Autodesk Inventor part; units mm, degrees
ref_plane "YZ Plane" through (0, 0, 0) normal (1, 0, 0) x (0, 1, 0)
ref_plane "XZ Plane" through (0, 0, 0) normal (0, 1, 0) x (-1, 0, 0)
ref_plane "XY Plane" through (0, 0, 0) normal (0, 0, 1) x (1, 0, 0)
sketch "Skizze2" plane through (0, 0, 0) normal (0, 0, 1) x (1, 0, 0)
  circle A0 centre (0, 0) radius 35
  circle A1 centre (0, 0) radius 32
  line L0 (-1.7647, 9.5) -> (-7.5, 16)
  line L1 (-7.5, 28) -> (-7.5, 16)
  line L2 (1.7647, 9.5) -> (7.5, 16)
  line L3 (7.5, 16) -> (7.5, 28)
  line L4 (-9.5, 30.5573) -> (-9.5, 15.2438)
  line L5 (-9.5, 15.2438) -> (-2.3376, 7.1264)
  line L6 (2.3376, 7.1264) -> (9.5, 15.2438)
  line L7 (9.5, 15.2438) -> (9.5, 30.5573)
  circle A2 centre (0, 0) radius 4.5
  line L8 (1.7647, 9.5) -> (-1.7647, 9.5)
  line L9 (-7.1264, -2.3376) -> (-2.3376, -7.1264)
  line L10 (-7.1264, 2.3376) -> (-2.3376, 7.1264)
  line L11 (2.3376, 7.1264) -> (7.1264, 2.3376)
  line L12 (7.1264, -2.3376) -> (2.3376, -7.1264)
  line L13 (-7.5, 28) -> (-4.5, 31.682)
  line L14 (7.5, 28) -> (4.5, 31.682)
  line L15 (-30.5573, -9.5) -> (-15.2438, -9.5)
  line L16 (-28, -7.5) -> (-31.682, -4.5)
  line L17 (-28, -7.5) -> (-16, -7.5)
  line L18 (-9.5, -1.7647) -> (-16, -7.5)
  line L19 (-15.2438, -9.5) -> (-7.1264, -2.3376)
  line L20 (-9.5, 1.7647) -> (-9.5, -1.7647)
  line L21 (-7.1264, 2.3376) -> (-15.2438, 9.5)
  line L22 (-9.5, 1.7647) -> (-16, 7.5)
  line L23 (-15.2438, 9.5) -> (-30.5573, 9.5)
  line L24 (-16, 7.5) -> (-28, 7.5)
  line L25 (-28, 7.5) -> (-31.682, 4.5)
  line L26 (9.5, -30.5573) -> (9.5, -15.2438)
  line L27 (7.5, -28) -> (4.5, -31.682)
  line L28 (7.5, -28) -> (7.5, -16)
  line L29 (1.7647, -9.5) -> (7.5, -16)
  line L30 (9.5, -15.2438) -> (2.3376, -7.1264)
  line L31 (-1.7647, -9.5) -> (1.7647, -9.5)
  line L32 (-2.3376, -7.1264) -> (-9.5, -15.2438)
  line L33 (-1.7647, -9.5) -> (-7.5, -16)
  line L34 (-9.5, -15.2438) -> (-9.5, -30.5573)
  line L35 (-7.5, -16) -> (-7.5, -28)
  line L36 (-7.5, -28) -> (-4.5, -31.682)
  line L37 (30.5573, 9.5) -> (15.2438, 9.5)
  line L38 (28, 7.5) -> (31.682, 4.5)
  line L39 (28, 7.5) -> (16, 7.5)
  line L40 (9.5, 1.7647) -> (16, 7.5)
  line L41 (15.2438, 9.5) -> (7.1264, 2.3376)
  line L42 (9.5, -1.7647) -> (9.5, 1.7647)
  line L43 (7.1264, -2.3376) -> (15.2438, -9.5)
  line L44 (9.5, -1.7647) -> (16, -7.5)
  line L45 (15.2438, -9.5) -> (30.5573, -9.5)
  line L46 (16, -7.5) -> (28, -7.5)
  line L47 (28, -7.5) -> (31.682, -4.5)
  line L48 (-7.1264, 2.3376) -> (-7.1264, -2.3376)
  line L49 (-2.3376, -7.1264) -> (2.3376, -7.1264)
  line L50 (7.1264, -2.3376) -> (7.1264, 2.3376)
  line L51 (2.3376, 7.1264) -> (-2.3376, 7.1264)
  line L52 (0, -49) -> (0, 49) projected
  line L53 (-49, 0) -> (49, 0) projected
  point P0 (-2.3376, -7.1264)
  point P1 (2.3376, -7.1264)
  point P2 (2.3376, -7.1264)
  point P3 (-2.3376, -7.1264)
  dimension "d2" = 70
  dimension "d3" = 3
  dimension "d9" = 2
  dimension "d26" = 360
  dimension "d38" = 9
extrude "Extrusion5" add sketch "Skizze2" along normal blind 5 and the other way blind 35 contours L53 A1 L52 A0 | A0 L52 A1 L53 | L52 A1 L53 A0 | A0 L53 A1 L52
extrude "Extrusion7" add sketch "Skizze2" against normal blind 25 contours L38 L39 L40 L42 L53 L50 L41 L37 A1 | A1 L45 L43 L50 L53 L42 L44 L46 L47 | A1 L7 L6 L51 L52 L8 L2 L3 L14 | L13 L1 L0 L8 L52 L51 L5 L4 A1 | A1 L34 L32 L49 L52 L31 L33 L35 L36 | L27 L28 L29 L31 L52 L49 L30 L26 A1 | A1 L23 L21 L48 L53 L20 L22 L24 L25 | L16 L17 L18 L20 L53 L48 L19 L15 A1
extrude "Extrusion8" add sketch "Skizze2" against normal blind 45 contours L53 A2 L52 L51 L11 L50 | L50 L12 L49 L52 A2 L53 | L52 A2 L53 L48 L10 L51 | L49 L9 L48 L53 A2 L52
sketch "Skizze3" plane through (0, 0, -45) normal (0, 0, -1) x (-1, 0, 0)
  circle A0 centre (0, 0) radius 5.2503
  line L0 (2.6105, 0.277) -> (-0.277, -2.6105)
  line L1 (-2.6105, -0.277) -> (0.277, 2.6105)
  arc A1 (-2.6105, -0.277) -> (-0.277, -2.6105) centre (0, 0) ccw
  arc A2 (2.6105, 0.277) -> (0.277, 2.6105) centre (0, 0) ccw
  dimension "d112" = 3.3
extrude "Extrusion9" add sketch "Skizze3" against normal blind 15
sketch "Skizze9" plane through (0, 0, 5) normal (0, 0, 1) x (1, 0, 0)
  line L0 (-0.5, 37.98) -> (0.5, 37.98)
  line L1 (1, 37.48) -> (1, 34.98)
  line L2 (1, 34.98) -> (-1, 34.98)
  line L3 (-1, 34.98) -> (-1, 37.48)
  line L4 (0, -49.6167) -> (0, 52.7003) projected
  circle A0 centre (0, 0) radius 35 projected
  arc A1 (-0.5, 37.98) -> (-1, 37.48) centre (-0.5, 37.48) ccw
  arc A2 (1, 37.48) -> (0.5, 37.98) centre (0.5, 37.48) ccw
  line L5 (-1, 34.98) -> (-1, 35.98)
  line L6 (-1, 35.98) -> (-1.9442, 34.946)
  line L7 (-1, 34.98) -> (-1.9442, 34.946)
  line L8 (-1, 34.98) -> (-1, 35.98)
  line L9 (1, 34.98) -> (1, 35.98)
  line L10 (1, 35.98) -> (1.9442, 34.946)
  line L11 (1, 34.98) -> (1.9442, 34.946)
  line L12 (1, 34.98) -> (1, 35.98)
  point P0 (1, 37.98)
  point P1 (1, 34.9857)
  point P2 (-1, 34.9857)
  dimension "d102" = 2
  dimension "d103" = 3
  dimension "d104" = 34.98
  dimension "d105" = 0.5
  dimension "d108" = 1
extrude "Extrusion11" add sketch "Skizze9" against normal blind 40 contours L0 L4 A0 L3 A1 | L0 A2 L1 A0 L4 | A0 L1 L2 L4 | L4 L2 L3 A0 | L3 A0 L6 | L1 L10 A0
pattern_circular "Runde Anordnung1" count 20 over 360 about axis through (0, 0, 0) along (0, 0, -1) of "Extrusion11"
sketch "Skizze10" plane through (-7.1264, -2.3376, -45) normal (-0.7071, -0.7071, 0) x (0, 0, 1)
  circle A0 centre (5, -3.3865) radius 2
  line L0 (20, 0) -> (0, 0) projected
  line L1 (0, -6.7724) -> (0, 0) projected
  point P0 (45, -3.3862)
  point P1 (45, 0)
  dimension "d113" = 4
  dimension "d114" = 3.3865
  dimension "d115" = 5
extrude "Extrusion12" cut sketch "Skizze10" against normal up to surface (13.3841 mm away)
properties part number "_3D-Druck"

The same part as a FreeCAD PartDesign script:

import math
import FreeCAD as App
import Part
import Sketcher

V = App.Vector
Q = App.Units.Quantity


def add_polygon(sketch, points):
    """Adds a closed chain of lines whose ends are joined by coincident constraints."""
    first, n = sketch.GeometryCount, len(points)
    for a, b in zip(points, points[1:] + points[:1]):
        sketch.addGeometry(Part.LineSegment(App.Vector(*a, 0), App.Vector(*b, 0)), False)
    for i in range(n):
        sketch.addConstraint(Sketcher.Constraint("Coincident", first + i, 2, first + (i + 1) % n, 1))

doc = App.newDocument("Part")
body = doc.addObject("PartDesign::Body", "Body")

# Sketch on XY plane
sketch1 = body.newObject("Sketcher::SketchObject", "Sketch")
sketch1.AttachmentSupport = (doc.getObject("XY_Plane"), [""])
sketch1.MapMode = "FlatFace"
sketch1.addGeometry([
    Part.Circle(V(0, 0, 0), V(0, 0, 1), 35),
    Part.Circle(V(0, 0, 0), V(0, 0, 1), 32),
], False)
sketch1.addConstraint([
    Sketcher.Constraint("Coincident", 0, 3, -1, 1),
    Sketcher.Constraint("Coincident", 1, 3, -1, 1),
    Sketcher.Constraint("Diameter", 0, Q("70 mm")),
    Sketcher.Constraint("Diameter", 1, Q("64 mm")),
])
pad1 = body.newObject("PartDesign::Pad", "Pad")
pad1.Profile = sketch1
pad1.Type = "TwoLengths"
pad1.Length = 5
pad1.Length2 = 35

# Sketch on XY plane
sketch2 = body.newObject("Sketcher::SketchObject", "Sketch001")
sketch2.AttachmentSupport = (doc.getObject("XY_Plane"), [""])
sketch2.MapMode = "FlatFace"
sketch2.addGeometry([
    Part.LineSegment(V(28, 7.5, 0), V(31.7, 4.5, 0)),  # 0
    Part.ArcOfCircle(Part.Circle(V(0, 0, 0), V(0, 0, 1), 32), math.radians(8.08), math.radians(17.27)),  # 1
    Part.LineSegment(V(30.6, 9.5, 0), V(15.2, 9.5, 0)),  # 2
    Part.LineSegment(V(15.2, 9.5, 0), V(7.1, 2.3, 0)),  # 3
    Part.LineSegment(V(7.1, 2.3, 0), V(7.1, -2.3, 0)),  # 4
    Part.LineSegment(V(7.1, -2.3, 0), V(15.2, -9.5, 0)),  # 5
    Part.LineSegment(V(15.2, -9.5, 0), V(30.6, -9.5, 0)),  # 6
    Part.ArcOfCircle(Part.Circle(V(0, 0, 0), V(0, 0, 1), 32), math.radians(-17.27), math.radians(-8.08)),  # 7
    Part.LineSegment(V(31.7, -4.5, 0), V(28, -7.5, 0)),  # 8
    Part.LineSegment(V(28, -7.5, 0), V(16, -7.5, 0)),  # 9
    Part.LineSegment(V(16, -7.5, 0), V(9.5, -1.8, 0)),  # 10
    Part.LineSegment(V(9.5, -1.8, 0), V(9.5, 1.8, 0)),  # 11
    Part.LineSegment(V(9.5, 1.8, 0), V(16, 7.5, 0)),  # 12
    Part.LineSegment(V(16, 7.5, 0), V(28, 7.5, 0)),  # 13
    Part.ArcOfCircle(Part.Circle(V(0, 0, 0), V(0, 0, 1), 32), math.radians(72.73), math.radians(81.92)),  # 14
    Part.LineSegment(V(4.5, 31.7, 0), V(7.5, 28, 0)),  # 15
    Part.LineSegment(V(7.5, 28, 0), V(7.5, 16, 0)),  # 16
    Part.LineSegment(V(7.5, 16, 0), V(1.8, 9.5, 0)),  # 17
    Part.LineSegment(V(1.8, 9.5, 0), V(-1.8, 9.5, 0)),  # 18
    Part.LineSegment(V(-1.8, 9.5, 0), V(-7.5, 16, 0)),  # 19
    Part.LineSegment(V(-7.5, 16, 0), V(-7.5, 28, 0)),  # 20
    Part.LineSegment(V(-7.5, 28, 0), V(-4.5, 31.7, 0)),  # 21
    Part.ArcOfCircle(Part.Circle(V(0, 0, 0), V(0, 0, 1), 32), math.radians(98.08), math.radians(107.27)),  # 22
    Part.LineSegment(V(-9.5, 30.6, 0), V(-9.5, 15.2, 0)),  # 23
    Part.LineSegment(V(-9.5, 15.2, 0), V(-2.3, 7.1, 0)),  # 24
    Part.LineSegment(V(-2.3, 7.1, 0), V(2.3, 7.1, 0)),  # 25
    Part.LineSegment(V(2.3, 7.1, 0), V(9.5, 15.2, 0)),  # 26
    Part.LineSegment(V(9.5, 15.2, 0), V(9.5, 30.6, 0)),  # 27
    Part.ArcOfCircle(Part.Circle(V(0, 0, 0), V(0, 0, 1), 32), math.radians(-107.27), math.radians(-98.08)),  # 28
    Part.LineSegment(V(-4.5, -31.7, 0), V(-7.5, -28, 0)),  # 29
    Part.LineSegment(V(-7.5, -28, 0), V(-7.5, -16, 0)),  # 30
    Part.LineSegment(V(-7.5, -16, 0), V(-1.8, -9.5, 0)),  # 31
    Part.LineSegment(V(-1.8, -9.5, 0), V(1.8, -9.5, 0)),  # 32
    Part.LineSegment(V(1.8, -9.5, 0), V(7.5, -16, 0)),  # 33
    Part.LineSegment(V(7.5, -16, 0), V(7.5, -28, 0)),  # 34
    Part.LineSegment(V(7.5, -28, 0), V(4.5, -31.7, 0)),  # 35
    Part.ArcOfCircle(Part.Circle(V(0, 0, 0), V(0, 0, 1), 32), math.radians(-81.92), math.radians(-72.73)),  # 36
    Part.LineSegment(V(9.5, -30.6, 0), V(9.5, -15.2, 0)),  # 37
    Part.LineSegment(V(9.5, -15.2, 0), V(2.3, -7.1, 0)),  # 38
    Part.LineSegment(V(2.3, -7.1, 0), V(-2.3, -7.1, 0)),  # 39
    Part.LineSegment(V(-2.3, -7.1, 0), V(-9.5, -15.2, 0)),  # 40
    Part.LineSegment(V(-9.5, -15.2, 0), V(-9.5, -30.6, 0)),  # 41
    Part.ArcOfCircle(Part.Circle(V(0, 0, 0), V(0, 0, 1), 32), math.radians(162.73), math.radians(171.92)),  # 42
    Part.LineSegment(V(-31.7, 4.5, 0), V(-28, 7.5, 0)),  # 43
    Part.LineSegment(V(-28, 7.5, 0), V(-16, 7.5, 0)),  # 44
    Part.LineSegment(V(-16, 7.5, 0), V(-9.5, 1.8, 0)),  # 45
    Part.LineSegment(V(-9.5, 1.8, 0), V(-9.5, -1.8, 0)),  # 46
    Part.LineSegment(V(-9.5, -1.8, 0), V(-16, -7.5, 0)),  # 47
    Part.LineSegment(V(-16, -7.5, 0), V(-28, -7.5, 0)),  # 48
    Part.LineSegment(V(-28, -7.5, 0), V(-31.7, -4.5, 0)),  # 49
    Part.ArcOfCircle(Part.Circle(V(0, 0, 0), V(0, 0, 1), 32), math.radians(-171.92), math.radians(-162.73)),  # 50
    Part.LineSegment(V(-30.6, -9.5, 0), V(-15.2, -9.5, 0)),  # 51
    Part.LineSegment(V(-15.2, -9.5, 0), V(-7.1, -2.3, 0)),  # 52
    Part.LineSegment(V(-7.1, -2.3, 0), V(-7.1, 2.3, 0)),  # 53
    Part.LineSegment(V(-7.1, 2.3, 0), V(-15.2, 9.5, 0)),  # 54
    Part.LineSegment(V(-15.2, 9.5, 0), V(-30.6, 9.5, 0)),  # 55
], False)
sketch2.addConstraint([
    Sketcher.Constraint("Coincident", 0, 2, 1, 1),
    Sketcher.Constraint("Coincident", 1, 2, 2, 1),
    Sketcher.Constraint("Coincident", 2, 2, 3, 1),
    Sketcher.Constraint("Coincident", 3, 2, 4, 1),
    Sketcher.Constraint("Coincident", 4, 2, 5, 1),
    Sketcher.Constraint("Coincident", 5, 2, 6, 1),
    Sketcher.Constraint("Coincident", 6, 2, 7, 1),
    Sketcher.Constraint("Coincident", 7, 2, 8, 1),
    Sketcher.Constraint("Coincident", 8, 2, 9, 1),
    Sketcher.Constraint("Coincident", 9, 2, 10, 1),
    Sketcher.Constraint("Coincident", 10, 2, 11, 1),
    Sketcher.Constraint("Coincident", 11, 2, 12, 1),
    Sketcher.Constraint("Coincident", 12, 2, 13, 1),
    Sketcher.Constraint("Coincident", 13, 2, 0, 1),
    Sketcher.Constraint("Coincident", 14, 2, 15, 1),
    Sketcher.Constraint("Coincident", 15, 2, 16, 1),
    Sketcher.Constraint("Coincident", 16, 2, 17, 1),
    Sketcher.Constraint("Coincident", 17, 2, 18, 1),
    Sketcher.Constraint("Coincident", 18, 2, 19, 1),
    Sketcher.Constraint("Coincident", 19, 2, 20, 1),
    Sketcher.Constraint("Coincident", 20, 2, 21, 1),
    Sketcher.Constraint("Coincident", 21, 2, 22, 1),
    Sketcher.Constraint("Coincident", 22, 2, 23, 1),
    Sketcher.Constraint("Coincident", 23, 2, 24, 1),
    Sketcher.Constraint("Coincident", 24, 2, 25, 1),
    Sketcher.Constraint("Coincident", 25, 2, 26, 1),
    Sketcher.Constraint("Coincident", 26, 2, 27, 1),
    Sketcher.Constraint("Coincident", 27, 2, 14, 1),
    Sketcher.Constraint("Coincident", 28, 2, 29, 1),
    Sketcher.Constraint("Coincident", 29, 2, 30, 1),
    Sketcher.Constraint("Coincident", 30, 2, 31, 1),
    Sketcher.Constraint("Coincident", 31, 2, 32, 1),
    Sketcher.Constraint("Coincident", 32, 2, 33, 1),
    Sketcher.Constraint("Coincident", 33, 2, 34, 1),
    Sketcher.Constraint("Coincident", 34, 2, 35, 1),
    Sketcher.Constraint("Coincident", 35, 2, 36, 1),
    Sketcher.Constraint("Coincident", 36, 2, 37, 1),
    Sketcher.Constraint("Coincident", 37, 2, 38, 1),
    Sketcher.Constraint("Coincident", 38, 2, 39, 1),
    Sketcher.Constraint("Coincident", 39, 2, 40, 1),
    Sketcher.Constraint("Coincident", 40, 2, 41, 1),
    Sketcher.Constraint("Coincident", 41, 2, 28, 1),
    Sketcher.Constraint("Coincident", 42, 2, 43, 1),
    Sketcher.Constraint("Coincident", 43, 2, 44, 1),
    Sketcher.Constraint("Coincident", 44, 2, 45, 1),
    Sketcher.Constraint("Coincident", 45, 2, 46, 1),
    Sketcher.Constraint("Coincident", 46, 2, 47, 1),
    Sketcher.Constraint("Coincident", 47, 2, 48, 1),
    Sketcher.Constraint("Coincident", 48, 2, 49, 1),
    Sketcher.Constraint("Coincident", 49, 2, 50, 1),
    Sketcher.Constraint("Coincident", 50, 2, 51, 1),
    Sketcher.Constraint("Coincident", 51, 2, 52, 1),
    Sketcher.Constraint("Coincident", 52, 2, 53, 1),
    Sketcher.Constraint("Coincident", 53, 2, 54, 1),
    Sketcher.Constraint("Coincident", 54, 2, 55, 1),
    Sketcher.Constraint("Coincident", 55, 2, 42, 1),
    Sketcher.Constraint("Horizontal", 2),
    Sketcher.Constraint("Vertical", 4),
    Sketcher.Constraint("Horizontal", 6),
    Sketcher.Constraint("Horizontal", 9),
    Sketcher.Constraint("Vertical", 11),
    Sketcher.Constraint("Horizontal", 13),
    Sketcher.Constraint("Vertical", 16),
    Sketcher.Constraint("Horizontal", 18),
    Sketcher.Constraint("Vertical", 20),
    Sketcher.Constraint("Vertical", 23),
    Sketcher.Constraint("Horizontal", 25),
    Sketcher.Constraint("Vertical", 27),
    Sketcher.Constraint("Vertical", 30),
    Sketcher.Constraint("Horizontal", 32),
    Sketcher.Constraint("Vertical", 34),
    Sketcher.Constraint("Vertical", 37),
    Sketcher.Constraint("Horizontal", 39),
    Sketcher.Constraint("Vertical", 41),
    Sketcher.Constraint("Horizontal", 44),
    Sketcher.Constraint("Vertical", 46),
    Sketcher.Constraint("Horizontal", 48),
    Sketcher.Constraint("Horizontal", 51),
    Sketcher.Constraint("Vertical", 53),
    Sketcher.Constraint("Horizontal", 55),
    Sketcher.Constraint("Coincident", 1, 3, -1, 1),
    Sketcher.Constraint("Coincident", 7, 3, -1, 1),
    Sketcher.Constraint("Coincident", 14, 3, -1, 1),
    Sketcher.Constraint("Coincident", 22, 3, -1, 1),
    Sketcher.Constraint("Coincident", 28, 3, -1, 1),
    Sketcher.Constraint("Coincident", 36, 3, -1, 1),
    Sketcher.Constraint("Coincident", 42, 3, -1, 1),
    Sketcher.Constraint("Coincident", 50, 3, -1, 1),
    Sketcher.Constraint("Equal", 1, 7),
    Sketcher.Constraint("Equal", 7, 14),
    Sketcher.Constraint("Equal", 14, 22),
    Sketcher.Constraint("Equal", 22, 28),
    Sketcher.Constraint("Equal", 28, 36),
    Sketcher.Constraint("Equal", 36, 42),
    Sketcher.Constraint("Equal", 42, 50),
    Sketcher.Constraint("Symmetric", 15, 2, 29, 2, -1, 1),
    Sketcher.Constraint("Symmetric", 17, 2, 31, 2, -1, 1),
    Sketcher.Constraint("Symmetric", 19, 2, 33, 2, -1, 1),
    Sketcher.Constraint("Symmetric", 23, 2, 37, 2, -1, 1),
    Sketcher.Constraint("Symmetric", 24, 2, 38, 2, -1, 1),
    Sketcher.Constraint("Symmetric", 26, 2, 40, 2, -1, 1),
    Sketcher.Constraint("Symmetric", 8, 2, 43, 2, -1, 1),
    Sketcher.Constraint("Symmetric", 10, 2, 45, 2, -1, 1),
    Sketcher.Constraint("Symmetric", 12, 2, 47, 2, -1, 1),
    Sketcher.Constraint("Symmetric", 2, 2, 51, 2, -1, 1),
    Sketcher.Constraint("Symmetric", 3, 2, 52, 2, -1, 1),
    Sketcher.Constraint("Symmetric", 5, 2, 54, 2, -1, 1),
    Sketcher.Constraint("Symmetric", 16, 2, 19, 2, -2),
    Sketcher.Constraint("Symmetric", 23, 2, 26, 2, -2),
    Sketcher.Constraint("Symmetric", 13, 2, 43, 2, -2),
    Sketcher.Constraint("Symmetric", 5, 2, 51, 2, -2),
    Sketcher.Constraint("Parallel", 5, 10),
    Sketcher.Constraint("Parallel", 3, 12),
    Sketcher.Constraint("Perpendicular", 8, 15),
    Sketcher.Constraint("Perpendicular", 10, 17),
    Sketcher.Constraint("Perpendicular", 12, 19),
    Sketcher.Constraint("Perpendicular", 0, 21),
    Sketcher.Constraint("Parallel", 19, 24),
    Sketcher.Constraint("Parallel", 17, 26),
    Sketcher.Constraint("Parallel", 15, 29),
    Sketcher.Constraint("Parallel", 26, 31),
    Sketcher.Constraint("Parallel", 24, 33),
    Sketcher.Constraint("Parallel", 21, 35),
    Sketcher.Constraint("Parallel", 31, 40),
    Sketcher.Constraint("Perpendicular", 29, 43),
    Sketcher.Constraint("Perpendicular", 40, 45),
    Sketcher.Constraint("Perpendicular", 38, 47),
    Sketcher.Constraint("Perpendicular", 35, 49),
    Sketcher.Constraint("Parallel", 45, 54),
    Sketcher.Constraint("Horizontal", 2, 2, 17, 2),
    Sketcher.Constraint("Horizontal", 15, 2, 20, 2),
    Sketcher.Constraint("Horizontal", 14, 2, 21, 2),
    Sketcher.Constraint("Horizontal", 29, 2, 34, 2),
    Sketcher.Constraint("Horizontal", 11, 2, 45, 2),
    Sketcher.Constraint("Horizontal", 7, 2, 49, 2),
    Sketcher.Constraint("Horizontal", 4, 2, 52, 2),
    Sketcher.Constraint("Vertical", 11, 2, 26, 2),
    Sketcher.Constraint("Equal", 39, 4),
    Sketcher.Constraint("Equal", 32, 11),
    Sketcher.Constraint("Equal", 48, 16),
    Sketcher.Constraint("Equal", 55, 23),
    Sketcher.Constraint("Equal", 8, 15),
    Sketcher.Constraint("Equal", 12, 17),
    Sketcher.Constraint("Radius", 1, Q("32 mm")),
    Sketcher.Constraint("DistanceX", 9, 2, 9, 1, Q("12 mm")),
    Sketcher.Constraint("DistanceX", -1, 1, 8, 2, Q("28 mm")),
    Sketcher.Constraint("DistanceY", -1, 1, 0, 2, Q("4.5 mm")),
    Sketcher.Constraint("DistanceY", -1, 1, 1, 2, Q("9.5 mm")),
    Sketcher.Constraint("DistanceY", 8, 2, -1, 1, Q("7.5 mm")),
    Sketcher.Constraint("DistanceX", 2, 2, 2, 1, Q("15.3135 mm")),
    Sketcher.Constraint("DistanceX", 18, 2, 18, 1, Q("3.5294 mm")),
    Sketcher.Constraint("DistanceX", 25, 1, 25, 2, Q("4.6752 mm")),
])
pad2 = body.newObject("PartDesign::Pad", "Pad001")
pad2.Profile = sketch2
pad2.Length = 25
pad2.Reversed = True

# Sketch on XY plane
sketch3 = body.newObject("Sketcher::SketchObject", "Sketch002")
sketch3.AttachmentSupport = (doc.getObject("XY_Plane"), [""])
sketch3.MapMode = "FlatFace"
add_polygon(sketch3, [(2.3, 7.1), (-2.3, 7.1), (-7.1, 2.3), (-7.1, -2.3), (-2.3, -7.1), (2.3, -7.1), (7.1, -2.3), (7.1, 2.3)])  # lines 0-7
sketch3.addGeometry(Part.Circle(V(0, 0, 0), V(0, 0, 1), 4.5), False)  # 8
sketch3.addConstraint([
    Sketcher.Constraint("Horizontal", 0),
    Sketcher.Constraint("Vertical", 2),
    Sketcher.Constraint("Horizontal", 4),
    Sketcher.Constraint("Vertical", 6),
    Sketcher.Constraint("Coincident", 8, 3, -1, 1),
    Sketcher.Constraint("Symmetric", 0, 2, 4, 2, -1, 1),
    Sketcher.Constraint("Symmetric", 1, 2, 5, 2, -1, 1),
    Sketcher.Constraint("Perpendicular", 1, 3),
    Sketcher.Constraint("Perpendicular", 5, 7),
    Sketcher.Constraint("Horizontal", 2, 2, 5, 2),
    Sketcher.Constraint("Horizontal", 1, 2, 6, 2),
    Sketcher.Constraint("Vertical", 0, 2, 3, 2),
    Sketcher.Constraint("Equal", 4, 2),
    Sketcher.Constraint("Diameter", 8, Q("9 mm")),
    Sketcher.Constraint("DistanceX", 0, 2, 0, 1, Q("4.6752 mm")),
    Sketcher.Constraint("DistanceY", 2, 2, 0, 2, Q("9.464 mm")),
])
pad3 = body.newObject("PartDesign::Pad", "Pad002")
pad3.Profile = sketch3
pad3.Length = 45
pad3.Reversed = True

# Sketch on XY plane
sketch4 = body.newObject("Sketcher::SketchObject", "Sketch003")
sketch4.AttachmentSupport = (doc.getObject("XY_Plane"), [""])
sketch4.MapMode = "FlatFace"
sketch4.AttachmentOffset = App.Placement(V(0, 0, -45), App.Rotation())
sketch4.addGeometry([
    Part.Circle(V(0, 0, 0), V(0, 0, 1), 5.3),  # 0
    Part.ArcOfCircle(Part.Circle(V(0, 0, 0), V(0, 0, 1), 2.6), math.radians(96), math.radians(174)),  # 1
    Part.LineSegment(V(-2.6, 0.3, 0), V(0.3, -2.6, 0)),  # 2
    Part.ArcOfCircle(Part.Circle(V(0, 0, 0), V(0, 0, 1), 2.6), math.radians(-84), math.radians(-6)),  # 3
    Part.LineSegment(V(2.6, -0.3, 0), V(-0.3, 2.6, 0)),  # 4
], False)
sketch4.addConstraint([
    Sketcher.Constraint("Coincident", 1, 2, 2, 1),
    Sketcher.Constraint("Coincident", 2, 2, 3, 1),
    Sketcher.Constraint("Coincident", 3, 2, 4, 1),
    Sketcher.Constraint("Coincident", 4, 2, 1, 1),
    Sketcher.Constraint("Coincident", 0, 3, -1, 1),
    Sketcher.Constraint("Coincident", 1, 3, -1, 1),
    Sketcher.Constraint("Coincident", 3, 3, -1, 1),
    Sketcher.Constraint("Equal", 1, 3),
    Sketcher.Constraint("Parallel", 2, 4),
    Sketcher.Constraint("Equal", 2, 4),
    Sketcher.Constraint("Angle", 2, Q("-45 deg")),
    Sketcher.Constraint("Diameter", 0, Q("10.5006 mm")),
    Sketcher.Constraint("Radius", 1, Q("2.6252 mm")),
    Sketcher.Constraint("DistanceY", -1, 1, 1, 2, Q("0.277 mm")),
])
pad4 = body.newObject("PartDesign::Pad", "Pad003")
pad4.Profile = sketch4
pad4.Length = 15

# Sketch on XY plane
sketch5 = body.newObject("Sketcher::SketchObject", "Sketch004")
sketch5.AttachmentSupport = (doc.getObject("XY_Plane"), [""])
sketch5.MapMode = "FlatFace"
sketch5.AttachmentOffset = App.Placement(V(0, 0, 5), App.Rotation())
sketch5.addGeometry([
    Part.ArcOfCircle(Part.Circle(V(-0.5, 37.48, 0), V(0, 0, 1), 0.5), math.radians(90), math.radians(180)),  # 0
    Part.LineSegment(V(-1, 37.48, 0), V(-1, 35.98, 0)),  # 1
    Part.LineSegment(V(-1, 35.98, 0), V(-1.944, 34.946, 0)),  # 2
    Part.ArcOfCircle(Part.Circle(V(0, 0, 0), V(0, 0, 1), 35), math.radians(91.64), math.radians(93.18)),  # 3
    Part.LineSegment(V(-1, 34.986, 0), V(-1, 34.98, 0)),  # 4
    Part.LineSegment(V(-1, 34.98, 0), V(1, 34.98, 0)),  # 5
    Part.LineSegment(V(1, 34.98, 0), V(1, 34.986, 0)),  # 6
    Part.ArcOfCircle(Part.Circle(V(0, 0, 0), V(0, 0, 1), 35), math.radians(86.82), math.radians(88.36)),  # 7
    Part.LineSegment(V(1.944, 34.946, 0), V(1, 35.98, 0)),  # 8
    Part.LineSegment(V(1, 35.98, 0), V(1, 37.48, 0)),  # 9
    Part.ArcOfCircle(Part.Circle(V(0.5, 37.48, 0), V(0, 0, 1), 0.5), math.radians(0), math.radians(90)),  # 10
    Part.LineSegment(V(0.5, 37.98, 0), V(-0.5, 37.98, 0)),  # 11
], False)
sketch5.addConstraint([
    Sketcher.Constraint("Tangent", 0, 2, 1, 1),
    Sketcher.Constraint("Coincident", 1, 2, 2, 1),
    Sketcher.Constraint("Coincident", 2, 2, 3, 2),
    Sketcher.Constraint("Coincident", 3, 1, 4, 1),
    Sketcher.Constraint("Coincident", 4, 2, 5, 1),
    Sketcher.Constraint("Coincident", 5, 2, 6, 1),
    Sketcher.Constraint("Coincident", 6, 2, 7, 2),
    Sketcher.Constraint("Coincident", 7, 1, 8, 1),
    Sketcher.Constraint("Coincident", 8, 2, 9, 1),
    Sketcher.Constraint("Tangent", 9, 2, 10, 1),
    Sketcher.Constraint("Tangent", 10, 2, 11, 1),
    Sketcher.Constraint("Tangent", 11, 2, 0, 1),
    Sketcher.Constraint("Vertical", 1),
    Sketcher.Constraint("Vertical", 4),
    Sketcher.Constraint("Horizontal", 5),
    Sketcher.Constraint("Vertical", 6),
    Sketcher.Constraint("Vertical", 9),
    Sketcher.Constraint("Horizontal", 11),
    Sketcher.Constraint("Coincident", 3, 3, -1, 1),
    Sketcher.Constraint("Coincident", 7, 3, -1, 1),
    Sketcher.Constraint("Equal", 3, 7),
    Sketcher.Constraint("Equal", 0, 10),
    Sketcher.Constraint("Symmetric", 1, 2, 8, 2, -2),
    Sketcher.Constraint("Horizontal", 3, 1, 6, 2),
    Sketcher.Constraint("Horizontal", 2, 2, 7, 1),
    Sketcher.Constraint("Vertical", 1, 2, 3, 1),
    Sketcher.Constraint("Radius", 0, Q("0.5 mm")),
    Sketcher.Constraint("DistanceX", 5, 1, 5, 2, Q("2 mm")),
    Sketcher.Constraint("Radius", 3, Q("35 mm")),
    Sketcher.Constraint("DistanceY", 4, 2, 1, 2, Q("1 mm")),
    Sketcher.Constraint("DistanceY", 8, 2, 10, 2, Q("2 mm")),
    Sketcher.Constraint("DistanceY", -1, 1, 4, 2, Q("34.98 mm")),
    Sketcher.Constraint("Angle", 2, Q("-132.4009 deg")),
])
pad5 = body.newObject("PartDesign::Pad", "Pad004")
pad5.Profile = sketch5
pad5.Length = 40
pad5.Reversed = True
doc.recompute()

polarpattern = body.newObject("PartDesign::PolarPattern", "PolarPattern")
polarpattern.Originals = [pad5]
polarpattern.Axis = (doc.getObject("Z_Axis"), [""])
polarpattern.Angle = 360
polarpattern.Occurrences = 20
body.Tip = polarpattern

# Sketch on an angled plane
sketch6 = body.newObject("Sketcher::SketchObject", "Sketch005")
sketch6.Placement = App.Placement(V(-7.1264, -2.3376, -45), App.Rotation(V(0, 0, 1), V(-0.707106781, 0.707106781, 0), V(-0.707106781, -0.707106781, 0), "ZXY"))
sketch6.addGeometry(Part.Circle(V(5, -3.4, 0), V(0, 0, 1), 2), False)
sketch6.addConstraint([
    Sketcher.Constraint("Diameter", 0, Q("4 mm")),
    Sketcher.Constraint("DistanceX", -1, 1, 0, 3, Q("5 mm")),
    Sketcher.Constraint("DistanceY", 0, 3, -1, 1, Q("3.3865 mm")),
])
pocket1 = body.newObject("PartDesign::Pocket", "Pocket")
pocket1.Profile = sketch6
pocket1.Length = 13.3841

doc.recompute()
